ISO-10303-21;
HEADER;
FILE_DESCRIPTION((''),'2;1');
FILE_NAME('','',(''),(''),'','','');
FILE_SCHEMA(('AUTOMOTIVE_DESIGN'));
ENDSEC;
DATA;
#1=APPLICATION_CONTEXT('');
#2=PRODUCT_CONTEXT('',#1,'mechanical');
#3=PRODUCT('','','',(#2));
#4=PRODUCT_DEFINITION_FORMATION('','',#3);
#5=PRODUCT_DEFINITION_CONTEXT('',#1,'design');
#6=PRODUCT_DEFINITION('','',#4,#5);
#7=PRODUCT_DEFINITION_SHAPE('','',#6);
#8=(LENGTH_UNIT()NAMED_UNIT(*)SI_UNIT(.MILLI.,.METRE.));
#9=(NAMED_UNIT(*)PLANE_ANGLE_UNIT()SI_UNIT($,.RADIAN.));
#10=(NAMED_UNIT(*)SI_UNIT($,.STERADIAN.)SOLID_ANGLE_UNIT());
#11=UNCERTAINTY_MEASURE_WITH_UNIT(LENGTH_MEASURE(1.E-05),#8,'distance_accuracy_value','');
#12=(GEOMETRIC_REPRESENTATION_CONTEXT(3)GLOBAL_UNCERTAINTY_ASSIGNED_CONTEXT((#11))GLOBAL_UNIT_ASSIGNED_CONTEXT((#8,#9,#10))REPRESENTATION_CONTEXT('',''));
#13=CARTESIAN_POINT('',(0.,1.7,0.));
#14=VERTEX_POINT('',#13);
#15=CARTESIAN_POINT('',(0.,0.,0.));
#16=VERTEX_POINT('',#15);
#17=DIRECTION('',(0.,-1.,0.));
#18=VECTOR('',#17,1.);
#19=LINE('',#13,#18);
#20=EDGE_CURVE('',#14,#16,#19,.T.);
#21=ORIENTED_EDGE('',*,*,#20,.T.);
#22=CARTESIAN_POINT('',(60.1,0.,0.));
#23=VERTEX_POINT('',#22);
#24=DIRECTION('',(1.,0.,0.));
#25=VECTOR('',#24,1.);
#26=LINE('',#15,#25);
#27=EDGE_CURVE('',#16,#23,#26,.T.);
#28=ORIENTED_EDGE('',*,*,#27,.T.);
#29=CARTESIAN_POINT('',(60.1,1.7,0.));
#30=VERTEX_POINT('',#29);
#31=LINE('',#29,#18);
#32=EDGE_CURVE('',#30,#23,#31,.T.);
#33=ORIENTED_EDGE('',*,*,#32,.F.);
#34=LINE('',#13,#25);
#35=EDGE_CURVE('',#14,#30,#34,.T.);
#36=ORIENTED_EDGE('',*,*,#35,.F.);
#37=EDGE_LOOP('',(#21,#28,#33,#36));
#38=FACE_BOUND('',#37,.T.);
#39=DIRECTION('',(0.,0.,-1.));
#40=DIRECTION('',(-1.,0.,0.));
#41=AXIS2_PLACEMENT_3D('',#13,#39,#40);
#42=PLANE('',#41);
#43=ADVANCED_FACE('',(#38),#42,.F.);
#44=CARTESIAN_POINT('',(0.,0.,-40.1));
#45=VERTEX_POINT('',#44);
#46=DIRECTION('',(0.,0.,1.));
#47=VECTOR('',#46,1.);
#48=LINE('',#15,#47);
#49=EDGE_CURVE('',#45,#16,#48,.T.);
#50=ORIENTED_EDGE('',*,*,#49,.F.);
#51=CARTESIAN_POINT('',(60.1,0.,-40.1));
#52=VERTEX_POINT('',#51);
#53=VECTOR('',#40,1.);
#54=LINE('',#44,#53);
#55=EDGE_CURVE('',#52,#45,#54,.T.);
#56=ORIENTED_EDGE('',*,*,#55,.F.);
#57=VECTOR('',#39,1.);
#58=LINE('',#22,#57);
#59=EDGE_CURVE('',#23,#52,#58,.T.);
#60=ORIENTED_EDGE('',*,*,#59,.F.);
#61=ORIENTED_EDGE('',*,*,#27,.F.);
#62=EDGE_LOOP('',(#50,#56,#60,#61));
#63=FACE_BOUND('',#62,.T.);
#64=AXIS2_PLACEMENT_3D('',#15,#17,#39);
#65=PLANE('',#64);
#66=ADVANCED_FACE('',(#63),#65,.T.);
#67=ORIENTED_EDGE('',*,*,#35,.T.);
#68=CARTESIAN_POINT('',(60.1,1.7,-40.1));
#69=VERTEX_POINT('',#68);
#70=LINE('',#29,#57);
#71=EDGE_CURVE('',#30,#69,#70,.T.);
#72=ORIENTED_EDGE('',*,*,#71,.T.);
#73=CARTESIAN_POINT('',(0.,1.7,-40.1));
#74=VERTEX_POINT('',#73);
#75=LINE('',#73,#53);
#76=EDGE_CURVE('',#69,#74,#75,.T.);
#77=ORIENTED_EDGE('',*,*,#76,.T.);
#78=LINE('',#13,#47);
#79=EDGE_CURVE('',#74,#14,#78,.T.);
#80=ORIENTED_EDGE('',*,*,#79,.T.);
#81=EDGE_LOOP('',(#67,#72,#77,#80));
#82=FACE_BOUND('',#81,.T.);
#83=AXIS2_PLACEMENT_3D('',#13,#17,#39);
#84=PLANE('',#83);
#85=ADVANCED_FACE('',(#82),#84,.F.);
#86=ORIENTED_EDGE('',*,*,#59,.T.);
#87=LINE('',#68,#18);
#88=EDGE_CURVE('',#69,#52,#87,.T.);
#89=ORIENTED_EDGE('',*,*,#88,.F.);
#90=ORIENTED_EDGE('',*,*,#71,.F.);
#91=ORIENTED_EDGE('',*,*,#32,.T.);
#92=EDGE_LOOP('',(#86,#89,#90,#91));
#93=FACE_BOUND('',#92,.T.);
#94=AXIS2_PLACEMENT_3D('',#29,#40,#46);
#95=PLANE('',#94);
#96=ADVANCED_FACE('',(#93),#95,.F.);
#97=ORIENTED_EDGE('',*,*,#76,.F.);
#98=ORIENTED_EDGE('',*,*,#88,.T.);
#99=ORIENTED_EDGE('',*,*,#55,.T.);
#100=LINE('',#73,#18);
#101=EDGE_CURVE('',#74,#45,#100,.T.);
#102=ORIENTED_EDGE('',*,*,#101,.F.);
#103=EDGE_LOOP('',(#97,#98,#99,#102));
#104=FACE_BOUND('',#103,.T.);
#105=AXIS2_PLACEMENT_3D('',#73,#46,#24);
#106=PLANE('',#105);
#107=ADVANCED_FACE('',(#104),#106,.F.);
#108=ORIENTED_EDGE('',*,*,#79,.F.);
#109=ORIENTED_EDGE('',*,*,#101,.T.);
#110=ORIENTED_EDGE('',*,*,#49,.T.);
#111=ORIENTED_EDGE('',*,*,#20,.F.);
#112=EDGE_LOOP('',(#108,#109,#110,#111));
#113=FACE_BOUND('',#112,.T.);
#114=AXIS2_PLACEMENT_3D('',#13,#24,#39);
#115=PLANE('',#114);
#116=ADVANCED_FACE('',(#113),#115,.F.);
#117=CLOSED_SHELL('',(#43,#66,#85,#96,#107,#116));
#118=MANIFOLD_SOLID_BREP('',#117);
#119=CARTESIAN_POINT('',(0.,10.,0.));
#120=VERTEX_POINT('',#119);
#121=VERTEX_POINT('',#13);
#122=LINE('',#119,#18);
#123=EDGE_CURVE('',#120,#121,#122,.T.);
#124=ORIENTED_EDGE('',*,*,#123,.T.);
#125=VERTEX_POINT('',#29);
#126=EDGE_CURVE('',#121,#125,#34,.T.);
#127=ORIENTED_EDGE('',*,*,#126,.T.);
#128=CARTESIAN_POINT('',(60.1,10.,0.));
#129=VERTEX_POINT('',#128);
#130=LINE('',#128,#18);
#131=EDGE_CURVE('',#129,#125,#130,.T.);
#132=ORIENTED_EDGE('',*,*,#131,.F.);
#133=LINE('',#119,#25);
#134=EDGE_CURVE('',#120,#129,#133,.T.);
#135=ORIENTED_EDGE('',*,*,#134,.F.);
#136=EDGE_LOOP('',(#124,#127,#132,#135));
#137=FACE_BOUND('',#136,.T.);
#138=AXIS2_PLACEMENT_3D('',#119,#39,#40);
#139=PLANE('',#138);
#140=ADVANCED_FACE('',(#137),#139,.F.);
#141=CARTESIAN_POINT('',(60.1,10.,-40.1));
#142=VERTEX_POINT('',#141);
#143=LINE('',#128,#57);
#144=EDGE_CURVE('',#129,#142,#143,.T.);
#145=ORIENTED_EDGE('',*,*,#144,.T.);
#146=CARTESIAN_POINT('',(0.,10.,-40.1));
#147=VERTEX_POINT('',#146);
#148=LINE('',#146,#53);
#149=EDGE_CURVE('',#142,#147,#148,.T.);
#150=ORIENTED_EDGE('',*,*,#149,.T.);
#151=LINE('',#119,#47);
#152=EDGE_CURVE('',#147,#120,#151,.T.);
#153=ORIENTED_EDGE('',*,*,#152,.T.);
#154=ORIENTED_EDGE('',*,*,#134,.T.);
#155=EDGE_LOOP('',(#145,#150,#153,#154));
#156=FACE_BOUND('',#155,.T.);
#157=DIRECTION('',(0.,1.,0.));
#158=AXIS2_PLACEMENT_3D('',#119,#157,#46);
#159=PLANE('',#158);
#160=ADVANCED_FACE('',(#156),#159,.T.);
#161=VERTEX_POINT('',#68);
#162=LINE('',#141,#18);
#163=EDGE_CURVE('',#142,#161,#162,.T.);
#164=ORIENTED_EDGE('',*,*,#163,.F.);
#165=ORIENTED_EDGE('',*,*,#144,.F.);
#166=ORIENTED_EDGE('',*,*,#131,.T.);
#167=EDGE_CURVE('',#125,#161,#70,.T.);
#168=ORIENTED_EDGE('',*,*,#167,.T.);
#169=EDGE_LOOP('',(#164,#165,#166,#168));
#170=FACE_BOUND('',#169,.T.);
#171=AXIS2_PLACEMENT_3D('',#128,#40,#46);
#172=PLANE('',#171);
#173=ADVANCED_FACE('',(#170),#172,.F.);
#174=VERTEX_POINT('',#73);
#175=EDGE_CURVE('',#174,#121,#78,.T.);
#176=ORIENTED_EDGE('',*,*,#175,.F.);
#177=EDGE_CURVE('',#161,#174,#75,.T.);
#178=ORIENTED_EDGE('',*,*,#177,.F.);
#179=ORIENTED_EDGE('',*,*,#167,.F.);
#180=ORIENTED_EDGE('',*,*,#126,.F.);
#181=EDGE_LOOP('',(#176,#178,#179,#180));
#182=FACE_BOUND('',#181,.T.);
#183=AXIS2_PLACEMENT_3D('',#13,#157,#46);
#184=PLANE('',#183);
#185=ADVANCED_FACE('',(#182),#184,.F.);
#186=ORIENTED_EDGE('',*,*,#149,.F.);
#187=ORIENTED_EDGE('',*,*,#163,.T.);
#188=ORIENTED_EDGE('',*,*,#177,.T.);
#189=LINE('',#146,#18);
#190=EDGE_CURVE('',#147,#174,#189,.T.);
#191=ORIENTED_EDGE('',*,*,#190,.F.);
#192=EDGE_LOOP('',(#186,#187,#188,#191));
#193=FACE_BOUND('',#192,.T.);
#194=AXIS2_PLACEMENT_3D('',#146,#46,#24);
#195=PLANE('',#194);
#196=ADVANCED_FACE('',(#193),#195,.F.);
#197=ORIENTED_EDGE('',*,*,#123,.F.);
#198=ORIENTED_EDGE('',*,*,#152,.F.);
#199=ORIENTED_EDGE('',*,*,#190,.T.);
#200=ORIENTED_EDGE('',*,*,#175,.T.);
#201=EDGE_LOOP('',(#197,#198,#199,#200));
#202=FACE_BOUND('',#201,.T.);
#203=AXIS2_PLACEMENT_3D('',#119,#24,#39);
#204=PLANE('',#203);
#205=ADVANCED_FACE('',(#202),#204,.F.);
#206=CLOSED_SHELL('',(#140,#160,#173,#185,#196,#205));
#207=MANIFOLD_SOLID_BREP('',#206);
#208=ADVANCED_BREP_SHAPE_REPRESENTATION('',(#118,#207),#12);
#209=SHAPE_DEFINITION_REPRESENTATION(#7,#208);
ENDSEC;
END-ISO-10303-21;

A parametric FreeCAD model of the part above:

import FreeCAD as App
import Part
import Sketcher
from FreeCAD import Vector


def add_polygon(sketch, points):
    """Adds a closed chain of lines whose ends are joined by coincident constraints."""
    first, n = sketch.GeometryCount, len(points)
    for a, b in zip(points, points[1:] + points[:1]):
        sketch.addGeometry(Part.LineSegment(App.Vector(*a, 0), App.Vector(*b, 0)), False)
    for i in range(n):
        sketch.addConstraint(Sketcher.Constraint("Coincident", first + i, 2, first + (i + 1) % n, 1))

doc = App.newDocument("Part")
params = doc.addObject("Spreadsheet::Sheet", "Params")
for row, (alias, value) in enumerate([
    ("sketch1_width", "60.1 mm"),
    ("sketch1_height", "40.1 mm"),
    ("pad1_length", "1.7 mm"),
    ("sketch2_width", "60.1 mm"),
    ("sketch2_height", "40.1 mm"),
    ("pad2_length", "8.3 mm"),
], start=1):
    params.set(f"A{row}", alias)
    params.set(f"B{row}", "=" + value)
    params.setAlias(f"B{row}", alias)

body = doc.addObject("PartDesign::Body", "Body")

# Sketch on XZ plane
sketch1 = doc.addObject("Sketcher::SketchObject", "Sketch")
body.addObject(sketch1)
sketch1.AttachmentSupport = (doc.XZ_Plane, [""])
sketch1.MapMode = "FlatFace"
add_polygon(sketch1, [(0, -40), (0, 0), (60, 0), (60, -40)])  # lines 0-3
sketch1.addConstraint(Sketcher.Constraint("Vertical", 0))
sketch1.addConstraint(Sketcher.Constraint("Horizontal", 1))
sketch1.addConstraint(Sketcher.Constraint("Vertical", 2))
sketch1.addConstraint(Sketcher.Constraint("Horizontal", 3))
sketch1.addConstraint(Sketcher.Constraint("Coincident", 0, 2, -1, 1))
sketch1.addConstraint(Sketcher.Constraint("DistanceX", 1, 1, 1, 2, 60.1))
sketch1.addConstraint(Sketcher.Constraint("DistanceY", 0, 1, 0, 2, 40.1))
sketch1.setExpression("Constraints[9]", "Params.sketch1_width")
sketch1.setExpression("Constraints[10]", "Params.sketch1_height")
pad1 = doc.addObject("PartDesign::Pad", "Pad")
body.addObject(pad1)
pad1.Profile = sketch1
pad1.setExpression("Length", "Params.pad1_length")
pad1.Reversed = True
body2 = doc.addObject("PartDesign::Body", "Body001")

# Sketch on XZ plane
sketch2 = doc.addObject("Sketcher::SketchObject", "Sketch001")
body2.addObject(sketch2)
sketch2.AttachmentSupport = (doc.getObject("XZ_Plane001"), [""])
sketch2.MapMode = "FlatFace"
sketch2.AttachmentOffset = App.Placement(Vector(0, 0, -1.7), App.Rotation())
add_polygon(sketch2, [(0, -40), (0, 0), (60, 0), (60, -40)])  # lines 0-3
sketch2.addConstraint(Sketcher.Constraint("Vertical", 0))
sketch2.addConstraint(Sketcher.Constraint("Horizontal", 1))
sketch2.addConstraint(Sketcher.Constraint("Vertical", 2))
sketch2.addConstraint(Sketcher.Constraint("Horizontal", 3))
sketch2.addConstraint(Sketcher.Constraint("Coincident", 0, 2, -1, 1))
sketch2.addConstraint(Sketcher.Constraint("DistanceX", 1, 1, 1, 2, 60.1))
sketch2.addConstraint(Sketcher.Constraint("DistanceY", 0, 1, 0, 2, 40.1))
sketch2.setExpression("Constraints[9]", "Params.sketch2_width")
sketch2.setExpression("Constraints[10]", "Params.sketch2_height")
pad2 = doc.addObject("PartDesign::Pad", "Pad001")
body2.addObject(pad2)
pad2.Profile = sketch2
pad2.setExpression("Length", "Params.pad2_length")
pad2.Reversed = True

doc.recompute()
